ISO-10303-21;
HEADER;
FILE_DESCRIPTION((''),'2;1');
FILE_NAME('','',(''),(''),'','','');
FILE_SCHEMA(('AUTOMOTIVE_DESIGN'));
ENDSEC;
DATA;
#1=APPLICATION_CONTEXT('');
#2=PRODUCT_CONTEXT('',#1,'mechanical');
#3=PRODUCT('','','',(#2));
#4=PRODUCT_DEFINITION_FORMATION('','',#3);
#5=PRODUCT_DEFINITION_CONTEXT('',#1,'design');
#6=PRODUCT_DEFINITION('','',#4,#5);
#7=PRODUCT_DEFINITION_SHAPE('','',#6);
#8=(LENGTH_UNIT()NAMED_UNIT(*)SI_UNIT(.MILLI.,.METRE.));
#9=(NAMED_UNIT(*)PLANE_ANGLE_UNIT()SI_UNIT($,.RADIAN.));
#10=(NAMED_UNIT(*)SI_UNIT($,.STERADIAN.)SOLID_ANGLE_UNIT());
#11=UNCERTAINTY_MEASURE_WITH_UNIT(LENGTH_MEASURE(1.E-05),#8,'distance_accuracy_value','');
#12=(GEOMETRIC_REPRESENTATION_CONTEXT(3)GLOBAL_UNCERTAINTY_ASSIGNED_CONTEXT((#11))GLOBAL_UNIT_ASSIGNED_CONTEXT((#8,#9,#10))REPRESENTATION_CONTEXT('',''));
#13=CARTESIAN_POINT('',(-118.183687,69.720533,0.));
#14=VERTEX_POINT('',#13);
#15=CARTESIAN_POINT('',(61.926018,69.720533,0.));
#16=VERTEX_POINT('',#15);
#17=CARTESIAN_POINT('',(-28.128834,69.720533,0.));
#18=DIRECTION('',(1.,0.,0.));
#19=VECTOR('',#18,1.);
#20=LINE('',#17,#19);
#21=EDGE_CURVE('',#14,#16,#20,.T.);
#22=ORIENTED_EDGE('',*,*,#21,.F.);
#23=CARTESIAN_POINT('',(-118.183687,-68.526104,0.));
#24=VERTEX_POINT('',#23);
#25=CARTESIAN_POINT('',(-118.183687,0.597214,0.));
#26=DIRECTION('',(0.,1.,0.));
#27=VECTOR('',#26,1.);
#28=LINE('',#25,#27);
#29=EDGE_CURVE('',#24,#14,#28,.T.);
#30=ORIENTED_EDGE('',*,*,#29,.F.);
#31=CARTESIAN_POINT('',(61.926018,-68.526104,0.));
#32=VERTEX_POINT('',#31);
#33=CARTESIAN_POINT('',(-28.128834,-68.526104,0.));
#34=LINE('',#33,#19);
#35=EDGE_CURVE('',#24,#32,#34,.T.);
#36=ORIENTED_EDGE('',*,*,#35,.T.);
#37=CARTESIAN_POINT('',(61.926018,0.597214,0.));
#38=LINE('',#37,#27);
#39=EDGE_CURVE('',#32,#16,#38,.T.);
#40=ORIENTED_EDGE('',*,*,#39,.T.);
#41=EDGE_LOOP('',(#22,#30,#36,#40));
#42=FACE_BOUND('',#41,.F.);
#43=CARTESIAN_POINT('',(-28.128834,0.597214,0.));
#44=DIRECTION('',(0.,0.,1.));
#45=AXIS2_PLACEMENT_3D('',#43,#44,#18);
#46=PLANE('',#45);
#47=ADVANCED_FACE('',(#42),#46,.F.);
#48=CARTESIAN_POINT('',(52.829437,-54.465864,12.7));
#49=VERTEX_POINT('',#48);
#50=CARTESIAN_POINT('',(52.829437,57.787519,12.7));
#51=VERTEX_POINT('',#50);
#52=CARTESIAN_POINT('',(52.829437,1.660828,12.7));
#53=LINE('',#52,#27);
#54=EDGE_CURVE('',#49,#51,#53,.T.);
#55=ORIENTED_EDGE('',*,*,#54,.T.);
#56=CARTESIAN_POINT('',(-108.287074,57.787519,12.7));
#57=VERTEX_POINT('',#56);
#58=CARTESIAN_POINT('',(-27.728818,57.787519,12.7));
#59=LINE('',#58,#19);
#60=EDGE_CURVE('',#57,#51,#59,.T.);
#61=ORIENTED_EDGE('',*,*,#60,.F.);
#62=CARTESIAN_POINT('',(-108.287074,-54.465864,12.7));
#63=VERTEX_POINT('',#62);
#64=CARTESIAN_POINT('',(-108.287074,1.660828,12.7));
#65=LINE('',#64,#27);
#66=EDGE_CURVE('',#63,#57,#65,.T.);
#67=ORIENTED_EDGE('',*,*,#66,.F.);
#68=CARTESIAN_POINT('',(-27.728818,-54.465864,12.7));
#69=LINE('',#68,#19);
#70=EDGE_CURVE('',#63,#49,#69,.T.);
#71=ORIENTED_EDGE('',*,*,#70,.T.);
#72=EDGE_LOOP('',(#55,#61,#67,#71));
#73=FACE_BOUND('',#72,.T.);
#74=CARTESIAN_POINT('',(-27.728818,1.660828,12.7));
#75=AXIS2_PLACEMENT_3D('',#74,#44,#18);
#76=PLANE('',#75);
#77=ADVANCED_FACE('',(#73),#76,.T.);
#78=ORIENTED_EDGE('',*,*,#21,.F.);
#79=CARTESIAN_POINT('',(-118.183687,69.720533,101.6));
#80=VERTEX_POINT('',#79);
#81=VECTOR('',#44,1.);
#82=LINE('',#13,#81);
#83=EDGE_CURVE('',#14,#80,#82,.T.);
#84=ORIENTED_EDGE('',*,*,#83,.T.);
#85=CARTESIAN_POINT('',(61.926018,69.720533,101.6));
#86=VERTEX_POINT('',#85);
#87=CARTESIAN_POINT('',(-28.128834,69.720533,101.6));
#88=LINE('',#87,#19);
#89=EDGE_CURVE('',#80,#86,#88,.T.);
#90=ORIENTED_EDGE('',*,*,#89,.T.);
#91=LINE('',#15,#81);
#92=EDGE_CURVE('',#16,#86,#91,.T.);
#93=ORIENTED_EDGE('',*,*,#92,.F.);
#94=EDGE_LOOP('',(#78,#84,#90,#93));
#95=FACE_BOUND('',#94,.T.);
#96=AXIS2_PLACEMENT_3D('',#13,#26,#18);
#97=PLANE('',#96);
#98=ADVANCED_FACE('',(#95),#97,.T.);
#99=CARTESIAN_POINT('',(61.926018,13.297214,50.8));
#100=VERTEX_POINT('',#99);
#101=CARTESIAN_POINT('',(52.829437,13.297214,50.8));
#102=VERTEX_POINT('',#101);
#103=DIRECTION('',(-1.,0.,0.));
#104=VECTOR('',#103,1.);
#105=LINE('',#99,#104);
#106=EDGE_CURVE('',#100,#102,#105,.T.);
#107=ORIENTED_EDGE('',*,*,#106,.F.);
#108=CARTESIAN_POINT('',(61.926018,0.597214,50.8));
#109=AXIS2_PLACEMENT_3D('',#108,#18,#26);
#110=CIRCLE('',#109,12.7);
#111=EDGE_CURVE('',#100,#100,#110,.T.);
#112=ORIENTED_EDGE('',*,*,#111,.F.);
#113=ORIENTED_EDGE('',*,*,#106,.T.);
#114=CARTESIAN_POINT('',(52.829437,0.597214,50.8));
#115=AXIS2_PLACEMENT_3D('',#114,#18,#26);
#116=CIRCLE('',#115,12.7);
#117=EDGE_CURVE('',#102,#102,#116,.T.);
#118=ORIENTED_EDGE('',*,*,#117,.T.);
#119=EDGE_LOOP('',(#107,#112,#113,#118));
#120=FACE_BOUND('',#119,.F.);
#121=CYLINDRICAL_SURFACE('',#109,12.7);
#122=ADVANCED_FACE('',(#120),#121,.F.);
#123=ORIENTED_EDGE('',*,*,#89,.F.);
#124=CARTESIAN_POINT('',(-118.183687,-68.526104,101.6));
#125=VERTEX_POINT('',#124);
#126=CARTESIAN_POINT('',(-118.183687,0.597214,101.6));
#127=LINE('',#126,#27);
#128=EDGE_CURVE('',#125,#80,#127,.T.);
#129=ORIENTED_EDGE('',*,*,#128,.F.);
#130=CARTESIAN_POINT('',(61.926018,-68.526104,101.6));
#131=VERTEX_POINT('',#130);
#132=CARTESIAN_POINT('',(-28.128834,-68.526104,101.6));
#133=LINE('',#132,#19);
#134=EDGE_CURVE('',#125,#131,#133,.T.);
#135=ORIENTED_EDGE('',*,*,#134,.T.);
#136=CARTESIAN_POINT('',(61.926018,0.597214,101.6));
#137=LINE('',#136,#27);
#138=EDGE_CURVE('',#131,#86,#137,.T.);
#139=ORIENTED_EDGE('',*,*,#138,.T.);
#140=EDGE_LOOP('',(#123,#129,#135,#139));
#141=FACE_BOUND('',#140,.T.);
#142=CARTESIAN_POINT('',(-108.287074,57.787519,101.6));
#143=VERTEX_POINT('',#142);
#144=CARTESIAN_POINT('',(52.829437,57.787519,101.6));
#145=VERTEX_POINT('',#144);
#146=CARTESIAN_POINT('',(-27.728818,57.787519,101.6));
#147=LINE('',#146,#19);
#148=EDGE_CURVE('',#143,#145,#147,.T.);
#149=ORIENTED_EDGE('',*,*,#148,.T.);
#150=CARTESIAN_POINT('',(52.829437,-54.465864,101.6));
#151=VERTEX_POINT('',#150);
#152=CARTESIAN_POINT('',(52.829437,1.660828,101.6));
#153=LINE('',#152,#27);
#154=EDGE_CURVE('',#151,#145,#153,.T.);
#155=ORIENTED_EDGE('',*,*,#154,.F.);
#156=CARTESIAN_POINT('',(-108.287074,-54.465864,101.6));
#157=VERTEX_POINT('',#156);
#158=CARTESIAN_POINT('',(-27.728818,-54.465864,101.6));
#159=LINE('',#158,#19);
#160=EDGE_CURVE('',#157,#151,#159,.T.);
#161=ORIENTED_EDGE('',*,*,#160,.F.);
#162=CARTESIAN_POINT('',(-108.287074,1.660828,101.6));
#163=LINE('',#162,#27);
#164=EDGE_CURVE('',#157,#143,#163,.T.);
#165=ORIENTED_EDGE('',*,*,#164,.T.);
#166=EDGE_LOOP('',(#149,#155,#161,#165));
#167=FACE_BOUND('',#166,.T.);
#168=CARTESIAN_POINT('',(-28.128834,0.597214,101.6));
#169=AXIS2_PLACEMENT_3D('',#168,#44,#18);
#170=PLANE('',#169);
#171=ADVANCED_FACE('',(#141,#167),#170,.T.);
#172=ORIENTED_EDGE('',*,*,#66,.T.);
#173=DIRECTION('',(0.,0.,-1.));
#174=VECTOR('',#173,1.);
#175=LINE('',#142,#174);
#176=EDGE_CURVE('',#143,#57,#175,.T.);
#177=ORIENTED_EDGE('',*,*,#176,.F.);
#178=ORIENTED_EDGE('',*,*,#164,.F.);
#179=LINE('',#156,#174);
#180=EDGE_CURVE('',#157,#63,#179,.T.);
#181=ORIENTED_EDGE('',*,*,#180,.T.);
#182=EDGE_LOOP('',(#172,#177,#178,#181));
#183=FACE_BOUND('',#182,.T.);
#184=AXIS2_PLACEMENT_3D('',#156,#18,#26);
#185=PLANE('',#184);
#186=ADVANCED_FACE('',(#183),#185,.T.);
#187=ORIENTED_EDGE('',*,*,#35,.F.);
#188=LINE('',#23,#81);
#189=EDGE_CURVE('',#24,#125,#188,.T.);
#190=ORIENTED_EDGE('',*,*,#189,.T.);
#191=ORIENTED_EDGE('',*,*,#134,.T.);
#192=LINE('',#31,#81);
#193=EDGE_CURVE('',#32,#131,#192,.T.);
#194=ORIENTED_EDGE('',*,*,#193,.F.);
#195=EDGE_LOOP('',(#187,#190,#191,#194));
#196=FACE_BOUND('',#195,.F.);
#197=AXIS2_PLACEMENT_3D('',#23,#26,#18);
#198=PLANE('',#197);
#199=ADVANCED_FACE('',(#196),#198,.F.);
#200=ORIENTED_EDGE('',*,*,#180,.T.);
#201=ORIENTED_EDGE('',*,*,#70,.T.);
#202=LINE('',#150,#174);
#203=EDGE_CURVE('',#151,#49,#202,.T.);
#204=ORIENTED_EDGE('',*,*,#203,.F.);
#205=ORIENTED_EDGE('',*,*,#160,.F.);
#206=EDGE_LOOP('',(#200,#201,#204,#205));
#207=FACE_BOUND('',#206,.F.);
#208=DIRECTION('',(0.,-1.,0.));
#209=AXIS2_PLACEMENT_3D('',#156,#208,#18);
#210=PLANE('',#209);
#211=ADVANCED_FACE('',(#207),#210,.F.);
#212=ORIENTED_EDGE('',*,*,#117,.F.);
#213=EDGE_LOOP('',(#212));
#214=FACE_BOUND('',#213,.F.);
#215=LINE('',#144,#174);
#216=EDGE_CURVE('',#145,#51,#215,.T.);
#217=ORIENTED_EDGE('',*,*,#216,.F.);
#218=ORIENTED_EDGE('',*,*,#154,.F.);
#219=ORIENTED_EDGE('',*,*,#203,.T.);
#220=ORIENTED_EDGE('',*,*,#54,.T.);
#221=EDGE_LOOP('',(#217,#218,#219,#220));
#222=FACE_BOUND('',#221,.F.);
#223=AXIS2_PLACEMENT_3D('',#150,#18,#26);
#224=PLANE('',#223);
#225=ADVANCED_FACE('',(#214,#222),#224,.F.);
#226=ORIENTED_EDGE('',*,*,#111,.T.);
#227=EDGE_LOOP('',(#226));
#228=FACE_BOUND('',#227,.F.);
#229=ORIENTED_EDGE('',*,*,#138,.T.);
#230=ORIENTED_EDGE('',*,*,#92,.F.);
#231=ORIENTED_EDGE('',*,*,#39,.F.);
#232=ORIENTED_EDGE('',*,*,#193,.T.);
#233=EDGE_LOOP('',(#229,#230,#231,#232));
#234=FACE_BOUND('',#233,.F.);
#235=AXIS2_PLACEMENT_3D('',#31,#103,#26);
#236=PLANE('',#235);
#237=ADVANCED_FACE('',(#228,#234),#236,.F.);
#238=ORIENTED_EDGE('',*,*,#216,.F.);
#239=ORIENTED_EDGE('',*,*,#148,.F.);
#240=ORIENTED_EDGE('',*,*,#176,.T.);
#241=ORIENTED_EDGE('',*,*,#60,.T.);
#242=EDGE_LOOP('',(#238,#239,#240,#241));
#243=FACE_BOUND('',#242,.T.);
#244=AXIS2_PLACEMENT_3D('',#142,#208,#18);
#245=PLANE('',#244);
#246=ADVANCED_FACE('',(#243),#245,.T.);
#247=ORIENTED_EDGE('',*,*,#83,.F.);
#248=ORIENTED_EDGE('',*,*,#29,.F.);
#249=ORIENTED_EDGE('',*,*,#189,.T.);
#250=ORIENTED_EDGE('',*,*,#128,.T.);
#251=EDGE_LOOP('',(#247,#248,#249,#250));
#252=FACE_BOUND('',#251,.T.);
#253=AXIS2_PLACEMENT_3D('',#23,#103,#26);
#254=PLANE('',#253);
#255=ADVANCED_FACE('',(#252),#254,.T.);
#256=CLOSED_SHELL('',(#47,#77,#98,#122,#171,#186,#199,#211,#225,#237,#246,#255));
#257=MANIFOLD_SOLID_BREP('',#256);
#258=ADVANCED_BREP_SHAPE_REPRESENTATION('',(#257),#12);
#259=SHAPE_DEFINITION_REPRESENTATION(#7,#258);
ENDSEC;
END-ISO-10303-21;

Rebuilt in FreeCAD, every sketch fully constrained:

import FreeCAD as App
import Part
import Sketcher

V = App.Vector
Q = App.Units.Quantity


def add_polygon(sketch, points):
    """Adds a closed chain of lines whose ends are joined by coincident constraints."""
    first, n = sketch.GeometryCount, len(points)
    for a, b in zip(points, points[1:] + points[:1]):
        sketch.addGeometry(Part.LineSegment(App.Vector(*a, 0), App.Vector(*b, 0)), False)
    for i in range(n):
        sketch.addConstraint(Sketcher.Constraint("Coincident", first + i, 2, first + (i + 1) % n, 1))

doc = App.newDocument("Part")
body = doc.addObject("PartDesign::Body", "Body")

# Sketch on XY plane
sketch1 = body.newObject("Sketcher::SketchObject", "Sketch")
sketch1.AttachmentSupport = (doc.getObject("XY_Plane"), [""])
sketch1.MapMode = "FlatFace"
add_polygon(sketch1, [(-118, 70), (-118, -69), (62, -69), (62, 70)])  # lines 0-3
sketch1.addConstraint([
    Sketcher.Constraint("Vertical", 0),
    Sketcher.Constraint("Horizontal", 1),
    Sketcher.Constraint("Vertical", 2),
    Sketcher.Constraint("Horizontal", 3),
    Sketcher.Constraint("DistanceX", 1, 1, 1, 2, 180.109706),
    Sketcher.Constraint("DistanceY", 0, 2, 0, 1, 138.246637),
    Sketcher.Constraint("DistanceX", -1, 1, 1, 2, 61.926018),
    Sketcher.Constraint("DistanceY", 0, 2, -1, 1, 68.526104),
])
pad1 = body.newObject("PartDesign::Pad", "Pad")
pad1.Profile = sketch1
pad1.Length = Q("4 in")

# Sketch on XY plane
sketch2 = body.newObject("Sketcher::SketchObject", "Sketch001")
sketch2.AttachmentSupport = (doc.getObject("XY_Plane"), [""])
sketch2.MapMode = "FlatFace"
sketch2.AttachmentOffset = App.Placement(V(0, 0, 4 * 25.4), App.Rotation())
add_polygon(sketch2, [(-108, 58), (-108, -54), (53, -54), (53, 58)])  # lines 0-3
sketch2.addConstraint([
    Sketcher.Constraint("Vertical", 0),
    Sketcher.Constraint("Horizontal", 1),
    Sketcher.Constraint("Vertical", 2),
    Sketcher.Constraint("Horizontal", 3),
    Sketcher.Constraint("DistanceX", 1, 1, 1, 2, 161.116511),
    Sketcher.Constraint("DistanceY", 0, 2, 0, 1, 112.253383),
    Sketcher.Constraint("DistanceY", -1, 1, 2, 2, 57.787519),
    Sketcher.Constraint("DistanceX", 0, 2, -1, 1, 108.287074),
])
pocket1 = body.newObject("PartDesign::Pocket", "Pocket")
pocket1.Profile = sketch2
pocket1.Length = Q("3.5 in")

# Sketch on YZ plane
sketch3 = body.newObject("Sketcher::SketchObject", "Sketch002")
sketch3.AttachmentSupport = (doc.getObject("YZ_Plane"), [""])
sketch3.MapMode = "FlatFace"
sketch3.AttachmentOffset = App.Placement(V(0, 0, 61.926018), App.Rotation())
sketch3.addGeometry(Part.Circle(V(1, 51, 0), V(0, 0, 1), 13), False)
sketch3.addConstraint([
    Sketcher.Constraint("Diameter", 0, Q("1 in")),
    Sketcher.Constraint("DistanceY", -1, 1, 0, 3, Q("2 in")),
    Sketcher.Constraint("DistanceX", -1, 1, 0, 3, 0.597214),
])
pocket2 = body.newObject("PartDesign::Pocket", "Pocket001")
pocket2.Profile = sketch3
pocket2.Length = 9.096581

doc.recompute()
